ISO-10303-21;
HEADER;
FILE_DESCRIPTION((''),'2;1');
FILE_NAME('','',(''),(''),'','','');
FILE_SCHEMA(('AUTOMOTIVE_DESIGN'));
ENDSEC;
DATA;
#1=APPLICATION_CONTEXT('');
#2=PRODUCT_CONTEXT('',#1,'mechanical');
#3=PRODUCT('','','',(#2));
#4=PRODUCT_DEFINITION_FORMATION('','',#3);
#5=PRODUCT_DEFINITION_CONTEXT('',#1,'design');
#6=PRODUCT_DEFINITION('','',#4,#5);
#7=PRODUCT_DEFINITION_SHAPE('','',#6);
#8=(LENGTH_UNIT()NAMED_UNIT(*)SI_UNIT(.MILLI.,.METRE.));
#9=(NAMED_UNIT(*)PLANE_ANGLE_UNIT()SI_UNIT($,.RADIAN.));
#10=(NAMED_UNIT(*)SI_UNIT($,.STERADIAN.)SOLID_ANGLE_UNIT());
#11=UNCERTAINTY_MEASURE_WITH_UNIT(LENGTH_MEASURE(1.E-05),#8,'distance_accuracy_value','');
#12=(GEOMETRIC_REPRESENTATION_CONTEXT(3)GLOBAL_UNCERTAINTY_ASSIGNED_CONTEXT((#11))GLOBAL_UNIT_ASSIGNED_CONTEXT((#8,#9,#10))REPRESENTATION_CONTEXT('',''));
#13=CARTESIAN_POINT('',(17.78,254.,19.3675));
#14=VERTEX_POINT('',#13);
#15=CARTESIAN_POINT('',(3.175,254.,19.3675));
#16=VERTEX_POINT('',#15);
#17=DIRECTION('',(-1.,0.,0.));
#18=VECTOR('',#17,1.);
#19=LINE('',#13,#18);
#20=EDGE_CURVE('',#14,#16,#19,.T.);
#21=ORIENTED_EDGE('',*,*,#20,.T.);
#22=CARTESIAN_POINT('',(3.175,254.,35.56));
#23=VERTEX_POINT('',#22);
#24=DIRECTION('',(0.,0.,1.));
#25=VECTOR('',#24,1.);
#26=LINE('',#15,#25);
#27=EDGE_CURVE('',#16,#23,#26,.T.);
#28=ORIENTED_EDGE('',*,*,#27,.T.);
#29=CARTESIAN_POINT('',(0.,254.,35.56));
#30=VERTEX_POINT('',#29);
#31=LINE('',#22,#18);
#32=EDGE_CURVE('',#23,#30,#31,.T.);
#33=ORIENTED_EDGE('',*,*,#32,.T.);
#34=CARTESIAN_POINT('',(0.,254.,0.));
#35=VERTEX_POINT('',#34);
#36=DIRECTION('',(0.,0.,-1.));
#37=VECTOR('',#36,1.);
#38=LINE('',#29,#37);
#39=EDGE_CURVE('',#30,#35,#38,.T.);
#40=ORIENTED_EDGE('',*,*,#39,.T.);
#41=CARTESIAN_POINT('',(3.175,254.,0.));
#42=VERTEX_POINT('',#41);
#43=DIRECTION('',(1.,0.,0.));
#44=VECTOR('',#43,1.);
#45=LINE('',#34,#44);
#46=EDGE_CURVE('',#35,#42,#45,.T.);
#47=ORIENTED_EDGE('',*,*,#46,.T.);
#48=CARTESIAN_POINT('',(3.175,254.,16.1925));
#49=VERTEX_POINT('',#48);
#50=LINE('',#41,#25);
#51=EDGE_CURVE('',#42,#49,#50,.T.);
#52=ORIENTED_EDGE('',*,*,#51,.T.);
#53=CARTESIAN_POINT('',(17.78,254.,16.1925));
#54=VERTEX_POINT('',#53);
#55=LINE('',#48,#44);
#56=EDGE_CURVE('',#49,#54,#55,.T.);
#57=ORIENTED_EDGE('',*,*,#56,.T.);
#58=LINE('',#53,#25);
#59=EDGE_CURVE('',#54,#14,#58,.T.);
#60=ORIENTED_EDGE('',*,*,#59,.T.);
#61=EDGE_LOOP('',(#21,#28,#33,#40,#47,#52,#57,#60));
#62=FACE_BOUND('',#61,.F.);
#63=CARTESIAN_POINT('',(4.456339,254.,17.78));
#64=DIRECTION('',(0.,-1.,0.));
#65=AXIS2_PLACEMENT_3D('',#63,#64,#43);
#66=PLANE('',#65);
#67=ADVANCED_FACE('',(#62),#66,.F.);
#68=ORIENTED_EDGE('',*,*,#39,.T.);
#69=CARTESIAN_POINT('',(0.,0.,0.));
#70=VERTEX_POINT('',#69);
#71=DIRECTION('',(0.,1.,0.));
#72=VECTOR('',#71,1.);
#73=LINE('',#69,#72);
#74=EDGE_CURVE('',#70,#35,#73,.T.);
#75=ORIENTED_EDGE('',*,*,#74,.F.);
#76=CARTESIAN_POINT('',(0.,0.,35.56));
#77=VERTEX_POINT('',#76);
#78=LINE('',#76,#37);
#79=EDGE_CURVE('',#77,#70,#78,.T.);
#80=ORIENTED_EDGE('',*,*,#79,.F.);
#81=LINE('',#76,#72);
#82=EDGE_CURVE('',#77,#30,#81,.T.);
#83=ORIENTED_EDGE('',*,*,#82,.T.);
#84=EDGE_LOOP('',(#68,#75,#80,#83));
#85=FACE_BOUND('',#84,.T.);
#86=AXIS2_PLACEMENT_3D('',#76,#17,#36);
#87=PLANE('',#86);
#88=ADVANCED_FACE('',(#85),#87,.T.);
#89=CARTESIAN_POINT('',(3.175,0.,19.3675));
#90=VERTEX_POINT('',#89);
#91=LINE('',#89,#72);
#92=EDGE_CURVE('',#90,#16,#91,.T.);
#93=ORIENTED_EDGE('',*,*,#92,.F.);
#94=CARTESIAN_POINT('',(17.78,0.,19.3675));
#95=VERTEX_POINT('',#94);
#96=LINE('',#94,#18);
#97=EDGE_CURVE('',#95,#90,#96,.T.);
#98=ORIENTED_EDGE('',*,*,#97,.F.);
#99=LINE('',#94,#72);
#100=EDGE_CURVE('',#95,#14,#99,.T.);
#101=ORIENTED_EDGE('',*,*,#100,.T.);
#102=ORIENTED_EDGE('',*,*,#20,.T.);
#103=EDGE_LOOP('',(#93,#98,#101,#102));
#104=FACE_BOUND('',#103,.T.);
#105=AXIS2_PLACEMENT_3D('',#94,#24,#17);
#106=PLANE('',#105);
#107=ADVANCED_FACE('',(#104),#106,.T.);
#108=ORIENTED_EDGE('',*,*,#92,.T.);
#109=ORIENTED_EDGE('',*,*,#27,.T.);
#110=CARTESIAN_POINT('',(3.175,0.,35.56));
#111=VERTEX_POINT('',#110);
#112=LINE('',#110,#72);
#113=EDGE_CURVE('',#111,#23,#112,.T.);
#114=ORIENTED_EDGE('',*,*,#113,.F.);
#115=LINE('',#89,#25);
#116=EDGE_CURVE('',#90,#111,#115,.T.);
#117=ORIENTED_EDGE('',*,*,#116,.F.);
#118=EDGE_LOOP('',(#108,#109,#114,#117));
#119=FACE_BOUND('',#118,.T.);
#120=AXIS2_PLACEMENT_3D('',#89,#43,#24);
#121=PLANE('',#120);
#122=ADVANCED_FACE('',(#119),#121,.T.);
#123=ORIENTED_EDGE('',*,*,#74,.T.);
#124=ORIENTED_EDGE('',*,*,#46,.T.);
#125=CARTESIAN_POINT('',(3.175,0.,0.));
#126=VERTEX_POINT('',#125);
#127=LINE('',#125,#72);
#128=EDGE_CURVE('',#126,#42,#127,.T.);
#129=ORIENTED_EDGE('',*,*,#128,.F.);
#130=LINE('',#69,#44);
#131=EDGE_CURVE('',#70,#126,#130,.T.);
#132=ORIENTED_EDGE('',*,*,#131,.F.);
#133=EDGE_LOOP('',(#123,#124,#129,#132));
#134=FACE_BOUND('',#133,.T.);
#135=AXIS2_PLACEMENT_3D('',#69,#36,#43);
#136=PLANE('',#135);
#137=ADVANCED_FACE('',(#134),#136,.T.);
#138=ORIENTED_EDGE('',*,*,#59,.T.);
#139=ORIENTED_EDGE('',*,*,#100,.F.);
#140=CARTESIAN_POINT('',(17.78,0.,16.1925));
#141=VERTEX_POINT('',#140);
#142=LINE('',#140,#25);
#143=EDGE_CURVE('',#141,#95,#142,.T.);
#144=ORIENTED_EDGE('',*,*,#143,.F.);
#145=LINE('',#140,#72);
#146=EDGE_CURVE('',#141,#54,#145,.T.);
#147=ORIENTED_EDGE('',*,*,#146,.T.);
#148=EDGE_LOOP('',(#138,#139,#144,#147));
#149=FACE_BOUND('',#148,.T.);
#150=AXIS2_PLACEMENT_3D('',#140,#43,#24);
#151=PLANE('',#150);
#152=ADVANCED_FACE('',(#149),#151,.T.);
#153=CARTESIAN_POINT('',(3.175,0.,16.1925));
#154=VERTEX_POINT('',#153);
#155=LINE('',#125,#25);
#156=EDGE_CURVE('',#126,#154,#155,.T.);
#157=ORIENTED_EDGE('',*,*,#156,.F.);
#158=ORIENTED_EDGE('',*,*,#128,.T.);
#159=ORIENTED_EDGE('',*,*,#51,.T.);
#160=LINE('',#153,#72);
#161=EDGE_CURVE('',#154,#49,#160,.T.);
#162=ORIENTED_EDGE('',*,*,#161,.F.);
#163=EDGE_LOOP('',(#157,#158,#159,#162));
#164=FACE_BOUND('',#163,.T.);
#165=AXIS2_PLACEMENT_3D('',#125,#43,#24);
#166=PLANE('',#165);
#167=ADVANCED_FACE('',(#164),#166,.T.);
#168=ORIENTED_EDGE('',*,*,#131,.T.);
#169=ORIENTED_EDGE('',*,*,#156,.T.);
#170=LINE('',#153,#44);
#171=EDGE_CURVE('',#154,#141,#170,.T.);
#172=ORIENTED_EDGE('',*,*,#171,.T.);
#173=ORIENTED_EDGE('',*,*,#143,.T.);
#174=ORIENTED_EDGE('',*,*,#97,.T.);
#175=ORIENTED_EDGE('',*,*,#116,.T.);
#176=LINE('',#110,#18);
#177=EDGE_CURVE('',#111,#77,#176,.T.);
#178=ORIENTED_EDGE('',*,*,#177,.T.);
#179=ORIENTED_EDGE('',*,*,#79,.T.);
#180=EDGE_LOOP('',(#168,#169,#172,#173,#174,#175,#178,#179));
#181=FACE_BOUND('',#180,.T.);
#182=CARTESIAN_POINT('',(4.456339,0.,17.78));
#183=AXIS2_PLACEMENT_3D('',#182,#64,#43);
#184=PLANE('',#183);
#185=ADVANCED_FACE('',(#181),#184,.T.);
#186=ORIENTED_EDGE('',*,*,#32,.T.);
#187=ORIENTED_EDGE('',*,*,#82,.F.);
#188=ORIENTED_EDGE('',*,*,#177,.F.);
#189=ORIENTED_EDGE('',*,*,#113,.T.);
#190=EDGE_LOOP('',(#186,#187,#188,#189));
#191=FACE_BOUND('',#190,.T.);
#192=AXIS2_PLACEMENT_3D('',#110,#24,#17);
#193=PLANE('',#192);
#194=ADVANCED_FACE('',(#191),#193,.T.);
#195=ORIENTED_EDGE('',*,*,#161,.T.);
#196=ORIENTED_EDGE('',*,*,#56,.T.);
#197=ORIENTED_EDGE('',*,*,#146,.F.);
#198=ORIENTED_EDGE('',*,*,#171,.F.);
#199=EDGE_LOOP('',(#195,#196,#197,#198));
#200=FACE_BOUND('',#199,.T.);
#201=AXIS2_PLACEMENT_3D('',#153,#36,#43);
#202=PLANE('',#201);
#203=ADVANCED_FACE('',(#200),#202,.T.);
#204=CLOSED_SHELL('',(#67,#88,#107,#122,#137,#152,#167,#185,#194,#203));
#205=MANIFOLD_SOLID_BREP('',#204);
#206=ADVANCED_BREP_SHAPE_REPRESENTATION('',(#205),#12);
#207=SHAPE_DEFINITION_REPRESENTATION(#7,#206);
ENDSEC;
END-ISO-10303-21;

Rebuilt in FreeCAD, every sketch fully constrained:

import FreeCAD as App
import Part
import Sketcher
Q = App.Units.Quantity

doc = App.newDocument("Part")
body = doc.addObject("PartDesign::Body", "Body")

sketch1 = body.newObject("Sketcher::SketchObject", "Sketch")
sketch1.AttachmentSupport = (doc.getObject("XZ_Plane"), [""])
sketch1.MapMode = "FlatFace"
sketch1.addGeometry([
    Part.LineSegment(App.Vector(0, 0, 0), App.Vector(3.2, 0, 0)),
    Part.LineSegment(App.Vector(3.2, 0, 0), App.Vector(3.2, 16.2, 0)),
    Part.LineSegment(App.Vector(3.2, 16.2, 0), App.Vector(17.8, 16.2, 0)),
    Part.LineSegment(App.Vector(17.8, 16.2, 0), App.Vector(17.8, 19.4, 0)),
    Part.LineSegment(App.Vector(17.8, 19.4, 0), App.Vector(3.2, 19.4, 0)),
    Part.LineSegment(App.Vector(3.2, 19.4, 0), App.Vector(3.2, 35.6, 0)),
    Part.LineSegment(App.Vector(3.2, 35.6, 0), App.Vector(0, 35.6, 0)),
    Part.LineSegment(App.Vector(0, 35.6, 0), App.Vector(0, 0, 0)),
], False)
sketch1.addConstraint([
    Sketcher.Constraint("Coincident", 0, 2, 1, 1),
    Sketcher.Constraint("Coincident", 1, 2, 2, 1),
    Sketcher.Constraint("Coincident", 2, 2, 3, 1),
    Sketcher.Constraint("Coincident", 3, 2, 4, 1),
    Sketcher.Constraint("Coincident", 4, 2, 5, 1),
    Sketcher.Constraint("Coincident", 5, 2, 6, 1),
    Sketcher.Constraint("Coincident", 6, 2, 7, 1),
    Sketcher.Constraint("Coincident", 7, 2, 0, 1),
    Sketcher.Constraint("Horizontal", 0),
    Sketcher.Constraint("Vertical", 1),
    Sketcher.Constraint("Horizontal", 2),
    Sketcher.Constraint("Vertical", 3),
    Sketcher.Constraint("Horizontal", 4),
    Sketcher.Constraint("Vertical", 5),
    Sketcher.Constraint("Horizontal", 6),
    Sketcher.Constraint("Vertical", 7),
    Sketcher.Constraint("Coincident", 7, 2, -1, 1),
    Sketcher.Constraint("Vertical", 1, 2, 4, 2),
    Sketcher.Constraint("Equal", 6, 3),
    Sketcher.Constraint("Equal", 1, 5),
    Sketcher.Constraint("DistanceY", 7, 2, 7, 1, Q("1.4 in")),
    Sketcher.Constraint("DistanceX", -1, 1, 2, 2, Q("0.7 in")),
    Sketcher.Constraint("DistanceX", 0, 1, 0, 2, Q("0.125 in")),
])
pad1 = body.newObject("PartDesign::Pad", "Pad")
pad1.Profile = sketch1
pad1.Length = Q("10 in")
pad1.Reversed = True

doc.recompute()
